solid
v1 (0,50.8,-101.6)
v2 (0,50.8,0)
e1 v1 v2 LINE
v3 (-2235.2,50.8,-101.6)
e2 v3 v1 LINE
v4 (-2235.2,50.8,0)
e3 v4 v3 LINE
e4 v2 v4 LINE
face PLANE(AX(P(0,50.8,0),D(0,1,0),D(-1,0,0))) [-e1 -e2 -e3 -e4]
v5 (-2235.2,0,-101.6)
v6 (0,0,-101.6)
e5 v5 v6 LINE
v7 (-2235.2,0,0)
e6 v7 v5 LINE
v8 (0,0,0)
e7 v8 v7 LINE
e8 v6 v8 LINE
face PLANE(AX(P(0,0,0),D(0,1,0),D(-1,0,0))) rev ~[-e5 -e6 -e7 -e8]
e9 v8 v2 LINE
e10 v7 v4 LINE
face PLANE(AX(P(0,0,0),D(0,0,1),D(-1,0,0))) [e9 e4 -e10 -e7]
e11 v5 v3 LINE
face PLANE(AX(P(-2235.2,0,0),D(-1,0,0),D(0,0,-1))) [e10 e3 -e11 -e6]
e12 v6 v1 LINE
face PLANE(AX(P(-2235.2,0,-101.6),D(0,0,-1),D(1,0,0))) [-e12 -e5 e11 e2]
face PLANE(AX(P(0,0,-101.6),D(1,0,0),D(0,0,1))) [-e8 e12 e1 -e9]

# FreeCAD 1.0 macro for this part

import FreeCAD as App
import Part
import Sketcher

V = App.Vector
Q = App.Units.Quantity

doc = App.newDocument("Part")
body = doc.addObject("PartDesign::Body", "Body")

# Sketch on XZ plane
sketch1 = doc.addObject("Sketcher::SketchObject", "Sketch")
body.addObject(sketch1)
sketch1.AttachmentSupport = (doc.XZ_Plane, [""])
sketch1.MapMode = "FlatFace"
sketch1.addGeometry(Part.LineSegment(V(-2235.2, 0, 0), V(0, 0, 0)), False)
sketch1.addGeometry(Part.LineSegment(V(0, 0, 0), V(0, -101.6, 0)), False)
sketch1.addGeometry(Part.LineSegment(V(0, -101.6, 0), V(-2235.2, -101.6, 0)), False)
sketch1.addGeometry(Part.LineSegment(V(-2235.2, -101.6, 0), V(-2235.2, 0, 0)), False)
sketch1.addConstraint(Sketcher.Constraint("Coincident", 0, 2, 1, 1))
sketch1.addConstraint(Sketcher.Constraint("Coincident", 1, 2, 2, 1))
sketch1.addConstraint(Sketcher.Constraint("Coincident", 2, 2, 3, 1))
sketch1.addConstraint(Sketcher.Constraint("Coincident", 3, 2, 0, 1))
sketch1.addConstraint(Sketcher.Constraint("Horizontal", 0))
sketch1.addConstraint(Sketcher.Constraint("Vertical", 1))
sketch1.addConstraint(Sketcher.Constraint("Horizontal", 2))
sketch1.addConstraint(Sketcher.Constraint("Vertical", 3))
sketch1.addConstraint(Sketcher.Constraint("Coincident", 0, 2, -1, 1))
sketch1.addConstraint(Sketcher.Constraint("DistanceX", 0, 1, 0, 2, Q("88 in")))
sketch1.addConstraint(Sketcher.Constraint("DistanceY", 1, 2, 1, 1, Q("4 in")))
pad1 = doc.addObject("PartDesign::Pad", "Pad")
body.addObject(pad1)
pad1.Profile = sketch1
pad1.Length = Q("2 in")
pad1.Reversed = True

doc.recompute()
